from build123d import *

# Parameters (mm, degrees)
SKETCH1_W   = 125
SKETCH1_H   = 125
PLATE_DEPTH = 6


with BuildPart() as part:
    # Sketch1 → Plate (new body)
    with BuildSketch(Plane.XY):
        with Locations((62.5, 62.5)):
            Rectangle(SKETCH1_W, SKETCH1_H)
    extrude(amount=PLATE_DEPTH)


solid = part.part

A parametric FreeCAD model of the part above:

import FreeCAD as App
import Part
import Sketcher

V = App.Vector
Q = App.Units.Quantity

doc = App.newDocument("Part")
body = doc.addObject("PartDesign::Body", "Body")

sketch1 = doc.addObject("Sketcher::SketchObject", "Sketch")
body.addObject(sketch1)
sketch1.AttachmentSupport = (doc.XY_Plane, [""])
sketch1.MapMode = "FlatFace"
sketch1.addGeometry(Part.LineSegment(V(0, 125, 0), V(0, 0, 0)), False)
sketch1.addGeometry(Part.LineSegment(V(0, 0, 0), V(125, 0, 0)), False)
sketch1.addGeometry(Part.LineSegment(V(125, 0, 0), V(125, 125, 0)), False)
sketch1.addGeometry(Part.LineSegment(V(125, 125, 0), V(0, 125, 0)), False)
sketch1.addConstraint(Sketcher.Constraint("Coincident", 0, 2, 1, 1))
sketch1.addConstraint(Sketcher.Constraint("Coincident", 1, 2, 2, 1))
sketch1.addConstraint(Sketcher.Constraint("Coincident", 2, 2, 3, 1))
sketch1.addConstraint(Sketcher.Constraint("Coincident", 3, 2, 0, 1))
sketch1.addConstraint(Sketcher.Constraint("Vertical", 0))
sketch1.addConstraint(Sketcher.Constraint("Horizontal", 1))
sketch1.addConstraint(Sketcher.Constraint("Vertical", 2))
sketch1.addConstraint(Sketcher.Constraint("Horizontal", 3))
sketch1.addConstraint(Sketcher.Constraint("Coincident", 0, 2, -1, 1))
sketch1.addConstraint(Sketcher.Constraint("Equal", 3, 0))
sketch1.addConstraint(Sketcher.Constraint("DistanceX", 1, 1, 1, 2, Q("125 mm")))
pad1 = doc.addObject("PartDesign::Pad", "Pad")
body.addObject(pad1)
pad1.Profile = sketch1
pad1.Length = 6

doc.recompute()
